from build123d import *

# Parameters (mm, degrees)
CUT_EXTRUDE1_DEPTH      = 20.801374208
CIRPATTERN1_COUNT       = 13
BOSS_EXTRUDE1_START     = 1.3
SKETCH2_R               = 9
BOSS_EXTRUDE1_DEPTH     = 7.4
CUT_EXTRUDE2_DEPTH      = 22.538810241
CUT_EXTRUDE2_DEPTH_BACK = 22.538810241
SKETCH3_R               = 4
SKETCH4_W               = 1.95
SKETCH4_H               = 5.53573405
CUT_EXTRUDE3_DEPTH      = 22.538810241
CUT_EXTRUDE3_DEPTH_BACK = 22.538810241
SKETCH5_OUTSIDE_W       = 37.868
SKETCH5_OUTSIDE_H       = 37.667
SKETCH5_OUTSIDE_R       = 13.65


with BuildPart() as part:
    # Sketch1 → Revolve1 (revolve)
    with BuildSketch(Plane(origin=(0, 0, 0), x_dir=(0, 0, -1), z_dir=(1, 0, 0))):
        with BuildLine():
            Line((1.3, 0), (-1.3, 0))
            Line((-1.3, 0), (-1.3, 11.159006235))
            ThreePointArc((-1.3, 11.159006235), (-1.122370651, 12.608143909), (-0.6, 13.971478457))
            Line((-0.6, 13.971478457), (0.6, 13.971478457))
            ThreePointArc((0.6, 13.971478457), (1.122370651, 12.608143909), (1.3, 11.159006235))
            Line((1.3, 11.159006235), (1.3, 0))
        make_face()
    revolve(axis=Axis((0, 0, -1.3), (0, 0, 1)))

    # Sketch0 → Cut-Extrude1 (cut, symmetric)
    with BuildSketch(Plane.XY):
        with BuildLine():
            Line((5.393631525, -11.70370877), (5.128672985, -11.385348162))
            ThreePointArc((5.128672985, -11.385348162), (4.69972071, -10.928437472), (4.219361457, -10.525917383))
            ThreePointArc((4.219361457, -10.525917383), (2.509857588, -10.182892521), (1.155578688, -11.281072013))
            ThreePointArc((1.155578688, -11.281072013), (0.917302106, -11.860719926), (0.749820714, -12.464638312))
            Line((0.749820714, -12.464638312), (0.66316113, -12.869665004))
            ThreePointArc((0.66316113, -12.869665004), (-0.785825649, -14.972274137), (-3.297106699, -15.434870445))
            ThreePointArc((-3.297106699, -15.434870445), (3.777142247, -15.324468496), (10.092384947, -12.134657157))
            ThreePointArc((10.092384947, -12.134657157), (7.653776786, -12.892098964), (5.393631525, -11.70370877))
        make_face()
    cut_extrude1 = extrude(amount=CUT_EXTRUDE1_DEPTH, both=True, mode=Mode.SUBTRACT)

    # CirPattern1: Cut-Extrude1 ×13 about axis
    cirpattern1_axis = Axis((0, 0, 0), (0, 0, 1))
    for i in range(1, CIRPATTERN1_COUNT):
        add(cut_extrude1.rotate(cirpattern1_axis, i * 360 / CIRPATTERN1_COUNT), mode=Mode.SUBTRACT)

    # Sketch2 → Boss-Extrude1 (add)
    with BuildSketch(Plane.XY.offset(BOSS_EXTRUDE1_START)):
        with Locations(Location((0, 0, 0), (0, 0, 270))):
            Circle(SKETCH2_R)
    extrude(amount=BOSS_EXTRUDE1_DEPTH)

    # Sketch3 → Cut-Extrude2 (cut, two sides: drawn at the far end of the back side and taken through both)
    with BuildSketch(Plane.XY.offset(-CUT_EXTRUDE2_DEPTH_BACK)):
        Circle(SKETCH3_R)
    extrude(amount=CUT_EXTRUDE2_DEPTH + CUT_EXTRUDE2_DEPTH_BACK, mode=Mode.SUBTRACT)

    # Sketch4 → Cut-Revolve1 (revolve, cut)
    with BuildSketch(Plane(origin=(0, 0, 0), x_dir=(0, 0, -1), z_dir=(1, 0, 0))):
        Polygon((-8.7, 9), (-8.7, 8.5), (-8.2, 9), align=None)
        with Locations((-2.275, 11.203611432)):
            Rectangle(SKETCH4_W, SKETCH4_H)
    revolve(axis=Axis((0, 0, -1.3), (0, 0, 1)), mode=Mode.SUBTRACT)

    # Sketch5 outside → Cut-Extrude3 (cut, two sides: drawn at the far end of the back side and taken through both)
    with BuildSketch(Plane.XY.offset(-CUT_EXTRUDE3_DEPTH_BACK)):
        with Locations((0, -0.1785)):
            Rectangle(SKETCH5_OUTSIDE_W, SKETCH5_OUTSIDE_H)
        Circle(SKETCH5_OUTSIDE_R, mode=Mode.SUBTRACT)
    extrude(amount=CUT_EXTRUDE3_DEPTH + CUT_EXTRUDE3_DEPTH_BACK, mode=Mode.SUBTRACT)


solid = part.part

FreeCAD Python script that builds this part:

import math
import FreeCAD as App
import Part
import Sketcher
from FreeCAD import Vector


def add_polygon(sketch, points):
    """Adds a closed chain of lines whose ends are joined by coincident constraints."""
    first, n = sketch.GeometryCount, len(points)
    for a, b in zip(points, points[1:] + points[:1]):
        sketch.addGeometry(Part.LineSegment(App.Vector(*a, 0), App.Vector(*b, 0)), False)
    for i in range(n):
        sketch.addConstraint(Sketcher.Constraint("Coincident", first + i, 2, first + (i + 1) % n, 1))

doc = App.newDocument("Part")
params = doc.addObject("Spreadsheet::Sheet", "Params")
for row, (alias, value) in enumerate([
    ("sketch1_radius", "6 mm"),
    ("sketch1_height", "2.6 mm"),
    ("sketch1_height2", "1.2 mm"),
    ("revolution_angle", "360 deg"),
    ("pocket1_length", "41.602748 mm"),
    ("sketch3_diameter", "18 mm"),
    ("pad1_length", "7.4 mm"),
    ("sketch4_diameter", "8 mm"),
    ("sketch5_width", "0.5 mm"),
    ("sketch5_height", "1.95 mm"),
    ("groove_angle", "360 deg"),
    ("sketch6_diameter", "27.3 mm"),
], start=1):
    params.set(f"A{row}", alias)
    params.set(f"B{row}", "=" + value)
    params.setAlias(f"B{row}", alias)

body = doc.addObject("PartDesign::Body", "Body")

# Sketch on YZ plane
sketch1 = body.newObject("Sketcher::SketchObject", "Sketch")
sketch1.AttachmentSupport = (doc.getObject("YZ_Plane"), [""])
sketch1.MapMode = "FlatFace"
sketch1.addGeometry(Part.LineSegment(Vector(0, 1.3, 0), Vector(0, -1.3, 0)), False)
sketch1.addGeometry(Part.LineSegment(Vector(0, -1.3, 0), Vector(11.2, -1.3, 0)), False)
sketch1.addGeometry(Part.ArcOfCircle(Part.Circle(Vector(11.2, 4.7, 0), Vector(0, 0, 1), 6), math.radians(-90), math.radians(-62)), False)
sketch1.addGeometry(Part.LineSegment(Vector(14, -0.6, 0), Vector(14, 0.6, 0)), False)
sketch1.addGeometry(Part.ArcOfCircle(Part.Circle(Vector(11.2, -4.7, 0), Vector(0, 0, 1), 6), math.radians(62), math.radians(90)), False)
sketch1.addGeometry(Part.LineSegment(Vector(11.2, 1.3, 0), Vector(0, 1.3, 0)), False)
sketch1.addConstraint(Sketcher.Constraint("Coincident", 0, 2, 1, 1))
sketch1.addConstraint(Sketcher.Constraint("Tangent", 1, 2, 2, 1))
sketch1.addConstraint(Sketcher.Constraint("Coincident", 2, 2, 3, 1))
sketch1.addConstraint(Sketcher.Constraint("Coincident", 3, 2, 4, 1))
sketch1.addConstraint(Sketcher.Constraint("Tangent", 4, 2, 5, 1))
sketch1.addConstraint(Sketcher.Constraint("Coincident", 5, 2, 0, 1))
sketch1.addConstraint(Sketcher.Constraint("Vertical", 0))
sketch1.addConstraint(Sketcher.Constraint("Horizontal", 1))
sketch1.addConstraint(Sketcher.Constraint("Vertical", 3))
sketch1.addConstraint(Sketcher.Constraint("Horizontal", 5))
sketch1.addConstraint(Sketcher.Constraint("Equal", 2, 4))
sketch1.addConstraint(Sketcher.Constraint("Symmetric", 0, 2, 5, 2, -1, 1))
sketch1.addConstraint(Sketcher.Constraint("Vertical", 2, 3, 4, 3))
sketch1.addConstraint(Sketcher.Constraint("Radius", 2, 6.0))
sketch1.addConstraint(Sketcher.Constraint("DistanceY", 0, 2, 0, 1, 2.6))
sketch1.addConstraint(Sketcher.Constraint("DistanceY", 3, 1, 3, 2, 1.2))
sketch1.addConstraint(Sketcher.Constraint("DistanceX", 1, 1, 1, 2, 11.159006))
sketch1.setExpression("Constraints[13]", "Params.sketch1_radius")
sketch1.setExpression("Constraints[14]", "Params.sketch1_height")
sketch1.setExpression("Constraints[15]", "Params.sketch1_height2")
revolution = body.newObject("PartDesign::Revolution", "Revolution")
revolution.Profile = sketch1
revolution.ReferenceAxis = (sketch1, ["V_Axis"])
revolution.setExpression("Angle", "Params.revolution_angle")

# Sketch on XY plane
sketch2 = body.newObject("Sketcher::SketchObject", "Sketch001")
sketch2.AttachmentSupport = (doc.getObject("XY_Plane"), [""])
sketch2.MapMode = "FlatFace"
sketch2.addGeometry(Part.LineSegment(Vector(5.39, -11.7, 0), Vector(5.13, -11.39, 0)), False)
sketch2.addGeometry(Part.ArcOfCircle(Part.Circle(Vector(1.09, -14.74, 0), Vector(0, 0, 1), 5.25), math.radians(39.77), math.radians(53.46)), False)
sketch2.addGeometry(Part.ArcOfCircle(Part.Circle(Vector(3, -12.17, 0), Vector(0, 0, 1), 2.05), math.radians(53), math.radians(154)), False)
sketch2.addGeometry(Part.ArcOfCircle(Part.Circle(Vector(5.88, -13.56, 0), Vector(0, 0, 1), 5.25), math.radians(154.23), math.radians(167.92)), False)
sketch2.addGeometry(Part.LineSegment(Vector(0.75, -12.46, 0), Vector(0.66, -12.87, 0)), False)
sketch2.addGeometry(Part.ArcOfCircle(Part.Circle(Vector(-2.6, -12.17, 0), Vector(0, 0, 1), 3.34), math.radians(-102), math.radians(-12)), False)
sketch2.addGeometry(Part.ArcOfCircle(Part.Circle(Vector(0, 0, 0), Vector(0, 0, 1), 15.78), math.radians(-102), math.radians(-50)), False)
sketch2.addGeometry(Part.ArcOfCircle(Part.Circle(Vector(7.96, -9.57, 0), Vector(0, 0, 1), 3.34), math.radians(-140), math.radians(-50)), False)
sketch2.addConstraint(Sketcher.Constraint("Tangent", 0, 2, 1, 1))
sketch2.addConstraint(Sketcher.Constraint("Tangent", 1, 2, 2, 1))
sketch2.addConstraint(Sketcher.Constraint("Tangent", 2, 2, 3, 1))
sketch2.addConstraint(Sketcher.Constraint("Tangent", 3, 2, 4, 1))
sketch2.addConstraint(Sketcher.Constraint("Tangent", 4, 2, 5, 2))
sketch2.addConstraint(Sketcher.Constraint("Tangent", 5, 1, 6, 1))
sketch2.addConstraint(Sketcher.Constraint("Tangent", 6, 2, 7, 2))
sketch2.addConstraint(Sketcher.Constraint("Tangent", 7, 1, 0, 1))
sketch2.addConstraint(Sketcher.Constraint("Coincident", 6, 3, -1, 1))
sketch2.addConstraint(Sketcher.Constraint("Equal", 1, 3))
sketch2.addConstraint(Sketcher.Constraint("Equal", 5, 7))
sketch2.addConstraint(Sketcher.Constraint("Horizontal", 2, 3, 5, 3))
sketch2.addConstraint(Sketcher.Constraint("Equal", 0, 4))
sketch2.addConstraint(Sketcher.Constraint("DistanceX", -1, 1, 2, 3, 3.0))
sketch2.addConstraint(Sketcher.Constraint("DistanceX", 5, 3, -1, 1, 2.6))
sketch2.addConstraint(Sketcher.Constraint("Radius", 1, 5.2481))
sketch2.addConstraint(Sketcher.Constraint("Radius", 2, 2.0481))
sketch2.addConstraint(Sketcher.Constraint("Radius", 5, 3.337017))
sketch2.addConstraint(Sketcher.Constraint("Radius", 6, 15.783097))
sketch2.addConstraint(Sketcher.Constraint("DistanceY", 5, 1, 2, 2, 4.153798))
sketch2.addConstraint(Sketcher.Constraint("DistanceX", -1, 1, 1, 3, 1.094841))
pocket1 = body.newObject("PartDesign::Pocket", "Pocket")
pocket1.Profile = sketch2
pocket1.setExpression("Length", "Params.pocket1_length")
pocket1.Midplane = True
doc.recompute()

polarpattern = body.newObject("PartDesign::PolarPattern", "PolarPattern")
polarpattern.Originals = [pocket1]
polarpattern.Axis = (doc.getObject("Z_Axis"), [""])
polarpattern.Angle = 360
polarpattern.Occurrences = 13
body.Tip = polarpattern

# Sketch on XY plane
sketch3 = body.newObject("Sketcher::SketchObject", "Sketch002")
sketch3.AttachmentSupport = (doc.getObject("XY_Plane"), [""])
sketch3.MapMode = "FlatFace"
sketch3.AttachmentOffset = App.Placement(Vector(0, 0, 1.3), App.Rotation())
sketch3.addGeometry(Part.Circle(Vector(0, 0, 0), Vector(0, 0, 1), 9), False)
sketch3.addConstraint(Sketcher.Constraint("Coincident", 0, 3, -1, 1))
sketch3.addConstraint(Sketcher.Constraint("Diameter", 0, 18.0))
sketch3.setExpression("Constraints[1]", "Params.sketch3_diameter")
pad1 = body.newObject("PartDesign::Pad", "Pad")
pad1.Profile = sketch3
pad1.setExpression("Length", "Params.pad1_length")

# Sketch on XY plane
sketch4 = body.newObject("Sketcher::SketchObject", "Sketch003")
sketch4.AttachmentSupport = (doc.getObject("XY_Plane"), [""])
sketch4.MapMode = "FlatFace"
sketch4.addGeometry(Part.Circle(Vector(0, 0, 0), Vector(0, 0, 1), 4), False)
sketch4.addConstraint(Sketcher.Constraint("Coincident", 0, 3, -1, 1))
sketch4.addConstraint(Sketcher.Constraint("Diameter", 0, 8.0))
sketch4.setExpression("Constraints[1]", "Params.sketch4_diameter")
pocket2 = body.newObject("PartDesign::Pocket", "Pocket001")
pocket2.Profile = sketch4
pocket2.Type = "ThroughAll"
pocket2.Midplane = True

# Sketch on YZ plane
sketch5 = body.newObject("Sketcher::SketchObject", "Sketch004")
sketch5.AttachmentSupport = (doc.getObject("YZ_Plane"), [""])
sketch5.MapMode = "FlatFace"
add_polygon(sketch5, [(9, 8.7), (8.5, 8.7), (9, 8.2)])  # lines 0-2
add_polygon(sketch5, [(14, 3.2), (8.4, 3.2), (8.4, 1.3), (14, 1.3)])  # lines 3-6
sketch5.addConstraint(Sketcher.Constraint("Horizontal", 0))
sketch5.addConstraint(Sketcher.Constraint("Vertical", 2))
sketch5.addConstraint(Sketcher.Constraint("Horizontal", 3))
sketch5.addConstraint(Sketcher.Constraint("Vertical", 4))
sketch5.addConstraint(Sketcher.Constraint("Horizontal", 5))
sketch5.addConstraint(Sketcher.Constraint("Vertical", 6))
sketch5.addConstraint(Sketcher.Constraint("Equal", 0, 2))
sketch5.addConstraint(Sketcher.Constraint("DistanceX", 0, 2, 0, 1, 0.5))
sketch5.addConstraint(Sketcher.Constraint("DistanceX", -1, 1, 1, 2, 9.0))
sketch5.addConstraint(Sketcher.Constraint("DistanceY", 4, 2, 4, 1, 1.95))
sketch5.addConstraint(Sketcher.Constraint("DistanceY", -1, 1, 0, 2, 8.7))
sketch5.addConstraint(Sketcher.Constraint("DistanceY", -1, 1, 4, 2, 1.3))
sketch5.addConstraint(Sketcher.Constraint("DistanceX", 3, 2, 3, 1, 5.535734))
sketch5.addConstraint(Sketcher.Constraint("DistanceX", -1, 1, 5, 2, 13.971478))
sketch5.setExpression("Constraints[14]", "Params.sketch5_width")
sketch5.setExpression("Constraints[16]", "Params.sketch5_height")
groove = body.newObject("PartDesign::Groove", "Groove")
groove.Profile = sketch5
groove.ReferenceAxis = (sketch5, ["V_Axis"])
groove.setExpression("Angle", "Params.groove_angle")

# Sketch on XY plane
sketch6 = body.newObject("Sketcher::SketchObject", "Sketch005")
sketch6.AttachmentSupport = (doc.getObject("XY_Plane"), [""])
sketch6.MapMode = "FlatFace"
add_polygon(sketch6, [(-19, 19), (-19, -19), (19, -19), (19, 19)])  # lines 0-3
sketch6.addGeometry(Part.Circle(Vector(0, 0, 0), Vector(0, 0, 1), 14), False)  # 4
sketch6.addConstraint(Sketcher.Constraint("Vertical", 0))
sketch6.addConstraint(Sketcher.Constraint("Horizontal", 1))
sketch6.addConstraint(Sketcher.Constraint("Vertical", 2))
sketch6.addConstraint(Sketcher.Constraint("Horizontal", 3))
sketch6.addConstraint(Sketcher.Constraint("Coincident", 4, 3, -1, 1))
sketch6.addConstraint(Sketcher.Constraint("Diameter", 4, 27.3))
sketch6.addConstraint(Sketcher.Constraint("DistanceX", 1, 1, 1, 2, 37.868))
sketch6.addConstraint(Sketcher.Constraint("DistanceY", 0, 2, 0, 1, 37.667))
sketch6.addConstraint(Sketcher.Constraint("DistanceX", 0, 2, -1, 1, 18.934))
sketch6.addConstraint(Sketcher.Constraint("DistanceY", 0, 2, -1, 1, 19.012))
sketch6.setExpression("Constraints[9]", "Params.sketch6_diameter")
pocket3 = body.newObject("PartDesign::Pocket", "Pocket002")
pocket3.Profile = sketch6
pocket3.Type = "ThroughAll"
pocket3.Midplane = True

doc.recompute()
